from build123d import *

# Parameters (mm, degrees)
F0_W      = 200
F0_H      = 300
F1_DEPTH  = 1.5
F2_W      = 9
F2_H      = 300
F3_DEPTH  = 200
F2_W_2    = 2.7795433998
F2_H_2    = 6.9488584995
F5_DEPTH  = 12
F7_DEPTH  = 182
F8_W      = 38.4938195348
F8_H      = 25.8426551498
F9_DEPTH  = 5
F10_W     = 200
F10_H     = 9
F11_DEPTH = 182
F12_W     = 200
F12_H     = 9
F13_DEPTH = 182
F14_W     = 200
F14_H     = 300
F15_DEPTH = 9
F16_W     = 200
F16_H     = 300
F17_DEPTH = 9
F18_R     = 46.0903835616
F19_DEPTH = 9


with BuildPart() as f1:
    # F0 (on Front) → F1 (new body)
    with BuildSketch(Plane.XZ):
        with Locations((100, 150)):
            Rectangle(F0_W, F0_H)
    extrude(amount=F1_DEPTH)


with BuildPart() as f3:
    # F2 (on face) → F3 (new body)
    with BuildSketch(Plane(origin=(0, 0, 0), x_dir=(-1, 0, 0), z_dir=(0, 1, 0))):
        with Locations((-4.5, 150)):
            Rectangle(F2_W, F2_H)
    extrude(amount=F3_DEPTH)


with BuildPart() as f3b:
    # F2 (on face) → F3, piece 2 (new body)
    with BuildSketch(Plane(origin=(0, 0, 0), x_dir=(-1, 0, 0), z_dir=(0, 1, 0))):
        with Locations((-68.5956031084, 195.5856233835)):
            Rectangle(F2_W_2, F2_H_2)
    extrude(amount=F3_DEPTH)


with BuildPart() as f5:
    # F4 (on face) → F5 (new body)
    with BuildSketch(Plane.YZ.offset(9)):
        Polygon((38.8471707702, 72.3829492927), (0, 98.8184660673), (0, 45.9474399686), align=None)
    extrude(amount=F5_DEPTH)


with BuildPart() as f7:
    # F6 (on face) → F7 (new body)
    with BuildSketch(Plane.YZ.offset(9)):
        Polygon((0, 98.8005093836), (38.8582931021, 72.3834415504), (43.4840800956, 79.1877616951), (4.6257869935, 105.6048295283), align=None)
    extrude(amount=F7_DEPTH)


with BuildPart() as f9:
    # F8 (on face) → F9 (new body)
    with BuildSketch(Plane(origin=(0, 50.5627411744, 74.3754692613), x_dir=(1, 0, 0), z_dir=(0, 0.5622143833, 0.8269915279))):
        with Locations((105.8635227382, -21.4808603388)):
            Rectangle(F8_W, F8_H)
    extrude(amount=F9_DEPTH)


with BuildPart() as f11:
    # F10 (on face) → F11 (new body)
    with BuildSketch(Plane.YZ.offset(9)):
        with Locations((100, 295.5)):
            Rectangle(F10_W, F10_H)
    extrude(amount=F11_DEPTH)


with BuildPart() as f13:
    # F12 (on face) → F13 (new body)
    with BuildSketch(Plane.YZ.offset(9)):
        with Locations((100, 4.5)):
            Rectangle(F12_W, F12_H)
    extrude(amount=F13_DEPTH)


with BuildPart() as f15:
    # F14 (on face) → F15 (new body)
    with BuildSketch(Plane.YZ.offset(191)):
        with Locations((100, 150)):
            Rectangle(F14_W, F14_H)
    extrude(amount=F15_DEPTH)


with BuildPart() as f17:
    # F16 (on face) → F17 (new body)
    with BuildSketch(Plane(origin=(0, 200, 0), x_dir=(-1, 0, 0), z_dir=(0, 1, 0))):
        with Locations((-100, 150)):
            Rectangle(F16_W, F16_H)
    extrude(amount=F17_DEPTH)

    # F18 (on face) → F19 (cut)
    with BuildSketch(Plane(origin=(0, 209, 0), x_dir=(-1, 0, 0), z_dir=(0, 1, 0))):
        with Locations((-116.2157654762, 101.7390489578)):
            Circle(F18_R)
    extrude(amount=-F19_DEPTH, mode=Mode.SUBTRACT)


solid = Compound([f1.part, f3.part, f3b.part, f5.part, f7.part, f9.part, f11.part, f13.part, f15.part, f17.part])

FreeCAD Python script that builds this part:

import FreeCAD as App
import Part
import Sketcher
Q = App.Units.Quantity

doc = App.newDocument("Part")
body = doc.addObject("PartDesign::Body", "Body")

# Sketch on XZ plane
sketch1 = body.newObject("Sketcher::SketchObject", "Sketch")
sketch1.AttachmentSupport = (doc.getObject("XZ_Plane"), [""])
sketch1.MapMode = "FlatFace"
sketch1.addGeometry(Part.LineSegment(App.Vector(0, 300, 0), App.Vector(0, 0, 0)), False)
sketch1.addGeometry(Part.LineSegment(App.Vector(0, 0, 0), App.Vector(200, 0, 0)), False)
sketch1.addGeometry(Part.LineSegment(App.Vector(200, 0, 0), App.Vector(200, 300, 0)), False)
sketch1.addGeometry(Part.LineSegment(App.Vector(200, 300, 0), App.Vector(0, 300, 0)), False)
sketch1.addConstraint(Sketcher.Constraint("Coincident", 0, 2, 1, 1))
sketch1.addConstraint(Sketcher.Constraint("Coincident", 1, 2, 2, 1))
sketch1.addConstraint(Sketcher.Constraint("Coincident", 2, 2, 3, 1))
sketch1.addConstraint(Sketcher.Constraint("Coincident", 3, 2, 0, 1))
sketch1.addConstraint(Sketcher.Constraint("Vertical", 0))
sketch1.addConstraint(Sketcher.Constraint("Horizontal", 1))
sketch1.addConstraint(Sketcher.Constraint("Vertical", 2))
sketch1.addConstraint(Sketcher.Constraint("Horizontal", 3))
sketch1.addConstraint(Sketcher.Constraint("Coincident", 0, 2, -1, 1))
sketch1.addConstraint(Sketcher.Constraint("DistanceX", 1, 1, 1, 2, Q("200 mm")))
sketch1.addConstraint(Sketcher.Constraint("DistanceY", 0, 2, 0, 1, Q("300 mm")))
pad1 = body.newObject("PartDesign::Pad", "Pad")
pad1.Profile = sketch1
pad1.Length = 1.5
body2 = doc.addObject("PartDesign::Body", "Body001")

# Sketch on XZ plane
sketch2 = body2.newObject("Sketcher::SketchObject", "Sketch001")
sketch2.AttachmentSupport = (doc.getObject("XZ_Plane001"), [""])
sketch2.MapMode = "FlatFace"
sketch2.addGeometry(Part.LineSegment(App.Vector(9, 300, 0), App.Vector(9, 0, 0)), False)
sketch2.addGeometry(Part.LineSegment(App.Vector(9, 0, 0), App.Vector(0, 0, 0)), False)
sketch2.addGeometry(Part.LineSegment(App.Vector(0, 0, 0), App.Vector(0, 300, 0)), False)
sketch2.addGeometry(Part.LineSegment(App.Vector(0, 300, 0), App.Vector(9, 300, 0)), False)
sketch2.addConstraint(Sketcher.Constraint("Coincident", 0, 2, 1, 1))
sketch2.addConstraint(Sketcher.Constraint("Coincident", 1, 2, 2, 1))
sketch2.addConstraint(Sketcher.Constraint("Coincident", 2, 2, 3, 1))
sketch2.addConstraint(Sketcher.Constraint("Coincident", 3, 2, 0, 1))
sketch2.addConstraint(Sketcher.Constraint("Vertical", 0))
sketch2.addConstraint(Sketcher.Constraint("Horizontal", 1))
sketch2.addConstraint(Sketcher.Constraint("Vertical", 2))
sketch2.addConstraint(Sketcher.Constraint("Horizontal", 3))
sketch2.addConstraint(Sketcher.Constraint("Coincident", 1, 2, -1, 1))
sketch2.addConstraint(Sketcher.Constraint("DistanceX", 1, 2, 1, 1, Q("9 mm")))
sketch2.addConstraint(Sketcher.Constraint("DistanceY", 0, 2, 0, 1, Q("300 mm")))
pad2 = body2.newObject("PartDesign::Pad", "Pad001")
pad2.Profile = sketch2
pad2.Length = 200
pad2.Reversed = True
body3 = doc.addObject("PartDesign::Body", "Body002")

# Sketch on XZ plane
sketch3 = body3.newObject("Sketcher::SketchObject", "Sketch002")
sketch3.AttachmentSupport = (doc.getObject("XZ_Plane002"), [""])
sketch3.MapMode = "FlatFace"
sketch3.addGeometry(Part.LineSegment(App.Vector(69.985375, 199.060053, 0), App.Vector(69.985375, 192.111194, 0)), False)
sketch3.addGeometry(Part.LineSegment(App.Vector(69.985375, 192.111194, 0), App.Vector(67.205831, 192.111194, 0)), False)
sketch3.addGeometry(Part.LineSegment(App.Vector(67.205831, 192.111194, 0), App.Vector(67.205831, 199.060053, 0)), False)
sketch3.addGeometry(Part.LineSegment(App.Vector(67.205831, 199.060053, 0), App.Vector(69.985375, 199.060053, 0)), False)
sketch3.addConstraint(Sketcher.Constraint("Coincident", 0, 2, 1, 1))
sketch3.addConstraint(Sketcher.Constraint("Coincident", 1, 2, 2, 1))
sketch3.addConstraint(Sketcher.Constraint("Coincident", 2, 2, 3, 1))
sketch3.addConstraint(Sketcher.Constraint("Coincident", 3, 2, 0, 1))
sketch3.addConstraint(Sketcher.Constraint("Vertical", 0))
sketch3.addConstraint(Sketcher.Constraint("Horizontal", 1))
sketch3.addConstraint(Sketcher.Constraint("Vertical", 2))
sketch3.addConstraint(Sketcher.Constraint("Horizontal", 3))
sketch3.addConstraint(Sketcher.Constraint("DistanceY", 0, 2, 0, 1, Q("6.948858 mm")))
sketch3.addConstraint(Sketcher.Constraint("DistanceX", 1, 2, 1, 1, Q("2.779543 mm")))
sketch3.addConstraint(Sketcher.Constraint("DistanceX", -1, 1, 1, 2, Q("67.205831 mm")))
sketch3.addConstraint(Sketcher.Constraint("DistanceY", -1, 1, 0, 2, Q("192.111194 mm")))
pad3 = body3.newObject("PartDesign::Pad", "Pad002")
pad3.Profile = sketch3
pad3.Length = 200
pad3.Reversed = True
body4 = doc.addObject("PartDesign::Body", "Body003")

# Sketch on YZ plane
sketch4 = body4.newObject("Sketcher::SketchObject", "Sketch003")
sketch4.AttachmentSupport = (doc.getObject("YZ_Plane003"), [""])
sketch4.MapMode = "FlatFace"
sketch4.AttachmentOffset = App.Placement(App.Vector(0, 0, 9), App.Rotation())
sketch4.addGeometry(Part.LineSegment(App.Vector(38.847171, 72.382949, 0), App.Vector(0, 98.818466, 0)), False)
sketch4.addGeometry(Part.LineSegment(App.Vector(0, 98.818466, 0), App.Vector(0, 45.94744, 0)), False)
sketch4.addGeometry(Part.LineSegment(App.Vector(0, 45.94744, 0), App.Vector(38.847171, 72.382949, 0)), False)
sketch4.addConstraint(Sketcher.Constraint("Coincident", 0, 2, 1, 1))
sketch4.addConstraint(Sketcher.Constraint("Coincident", 1, 2, 2, 1))
sketch4.addConstraint(Sketcher.Constraint("Coincident", 2, 2, 0, 1))
sketch4.addConstraint(Sketcher.Constraint("Vertical", 1))
sketch4.addConstraint(Sketcher.Constraint("PointOnObject", 0, 2, -2))
sketch4.addConstraint(Sketcher.Constraint("Distance", 2, Q("46.98871 mm")))
sketch4.addConstraint(Sketcher.Constraint("DistanceY", 1, 2, 1, 1, Q("52.871026 mm")))
sketch4.addConstraint(Sketcher.Constraint("DistanceY", -1, 1, 1, 2, Q("45.94744 mm")))
sketch4.addConstraint(Sketcher.Constraint("DistanceX", -1, 1, 2, 2, Q("38.847171 mm")))
pad4 = body4.newObject("PartDesign::Pad", "Pad003")
pad4.Profile = sketch4
pad4.Length = 12
body5 = doc.addObject("PartDesign::Body", "Body004")

# Sketch on YZ plane
sketch5 = body5.newObject("Sketcher::SketchObject", "Sketch004")
sketch5.AttachmentSupport = (doc.getObject("YZ_Plane004"), [""])
sketch5.MapMode = "FlatFace"
sketch5.AttachmentOffset = App.Placement(App.Vector(0, 0, 9), App.Rotation())
sketch5.addGeometry(Part.LineSegment(App.Vector(0, 98.800509, 0), App.Vector(38.858293, 72.383442, 0)), False)
sketch5.addGeometry(Part.LineSegment(App.Vector(38.858293, 72.383442, 0), App.Vector(43.48408, 79.187762, 0)), False)
sketch5.addGeometry(Part.LineSegment(App.Vector(43.48408, 79.187762, 0), App.Vector(4.625787, 105.60483, 0)), False)
sketch5.addGeometry(Part.LineSegment(App.Vector(4.625787, 105.60483, 0), App.Vector(0, 98.800509, 0)), False)
sketch5.addConstraint(Sketcher.Constraint("Coincident", 0, 2, 1, 1))
sketch5.addConstraint(Sketcher.Constraint("Coincident", 1, 2, 2, 1))
sketch5.addConstraint(Sketcher.Constraint("Coincident", 2, 2, 3, 1))
sketch5.addConstraint(Sketcher.Constraint("Coincident", 3, 2, 0, 1))
sketch5.addConstraint(Sketcher.Constraint("PointOnObject", 3, 2, -2))
sketch5.addConstraint(Sketcher.Constraint("Perpendicular", 0, 1))
sketch5.addConstraint(Sketcher.Constraint("Perpendicular", 1, 2))
sketch5.addConstraint(Sketcher.Constraint("Perpendicular", 2, 3))
sketch5.addConstraint(Sketcher.Constraint("Distance", 1, Q("8.227799 mm")))
sketch5.addConstraint(Sketcher.Constraint("DistanceY", -1, 1, 0, 2, Q("72.383442 mm")))
sketch5.addConstraint(Sketcher.Constraint("DistanceX", -1, 1, 1, 2, Q("43.48408 mm")))
sketch5.addConstraint(Sketcher.Constraint("DistanceY", -1, 1, 1, 2, Q("79.187762 mm")))
pad5 = body5.newObject("PartDesign::Pad", "Pad004")
pad5.Profile = sketch5
pad5.Length = 182
body6 = doc.addObject("PartDesign::Body", "Body005")

# Sketch on an angled plane
sketch6 = body6.newObject("Sketcher::SketchObject", "Sketch005")
sketch6.Placement = App.Placement(App.Vector(0, 50.562741, 74.375469), App.Rotation(App.Vector(1, 0, 0), App.Vector(0, 0.826991528, -0.562214383), App.Vector(0, 0.562214383, 0.826991528), "ZXY"))
sketch6.addGeometry(Part.LineSegment(App.Vector(86.616613, -8.559533, 0), App.Vector(86.616613, -34.402188, 0)), False)
sketch6.addGeometry(Part.LineSegment(App.Vector(86.616613, -34.402188, 0), App.Vector(125.110433, -34.402188, 0)), False)
sketch6.addGeometry(Part.LineSegment(App.Vector(125.110433, -34.402188, 0), App.Vector(125.110433, -8.559533, 0)), False)
sketch6.addGeometry(Part.LineSegment(App.Vector(125.110433, -8.559533, 0), App.Vector(86.616613, -8.559533, 0)), False)
sketch6.addConstraint(Sketcher.Constraint("Coincident", 0, 2, 1, 1))
sketch6.addConstraint(Sketcher.Constraint("Coincident", 1, 2, 2, 1))
sketch6.addConstraint(Sketcher.Constraint("Coincident", 2, 2, 3, 1))
sketch6.addConstraint(Sketcher.Constraint("Coincident", 3, 2, 0, 1))
sketch6.addConstraint(Sketcher.Constraint("Vertical", 0))
sketch6.addConstraint(Sketcher.Constraint("Horizontal", 1))
sketch6.addConstraint(Sketcher.Constraint("Vertical", 2))
sketch6.addConstraint(Sketcher.Constraint("Horizontal", 3))
sketch6.addConstraint(Sketcher.Constraint("DistanceX", 1, 1, 1, 2, Q("38.49382 mm")))
sketch6.addConstraint(Sketcher.Constraint("DistanceY", 0, 2, 0, 1, Q("25.842655 mm")))
sketch6.addConstraint(Sketcher.Constraint("DistanceX", -1, 1, 0, 2, Q("86.616613 mm")))
sketch6.addConstraint(Sketcher.Constraint("DistanceY", 0, 2, -1, 1, Q("34.402188 mm")))
pad6 = body6.newObject("PartDesign::Pad", "Pad005")
pad6.Profile = sketch6
pad6.Length = 5
body7 = doc.addObject("PartDesign::Body", "Body006")

# Sketch on YZ plane
sketch7 = body7.newObject("Sketcher::SketchObject", "Sketch006")
sketch7.AttachmentSupport = (doc.getObject("YZ_Plane006"), [""])
sketch7.MapMode = "FlatFace"
sketch7.AttachmentOffset = App.Placement(App.Vector(0, 0, 9), App.Rotation())
sketch7.addGeometry(Part.LineSegment(App.Vector(0, 300, 0), App.Vector(0, 291, 0)), False)
sketch7.addGeometry(Part.LineSegment(App.Vector(0, 291, 0), App.Vector(200, 291, 0)), False)
sketch7.addGeometry(Part.LineSegment(App.Vector(200, 291, 0), App.Vector(200, 300, 0)), False)
sketch7.addGeometry(Part.LineSegment(App.Vector(200, 300, 0), App.Vector(0, 300, 0)), False)
sketch7.addConstraint(Sketcher.Constraint("Coincident", 0, 2, 1, 1))
sketch7.addConstraint(Sketcher.Constraint("Coincident", 1, 2, 2, 1))
sketch7.addConstraint(Sketcher.Constraint("Coincident", 2, 2, 3, 1))
sketch7.addConstraint(Sketcher.Constraint("Coincident", 3, 2, 0, 1))
sketch7.addConstraint(Sketcher.Constraint("Vertical", 0))
sketch7.addConstraint(Sketcher.Constraint("Horizontal", 1))
sketch7.addConstraint(Sketcher.Constraint("Vertical", 2))
sketch7.addConstraint(Sketcher.Constraint("Horizontal", 3))
sketch7.addConstraint(Sketcher.Constraint("PointOnObject", 0, 2, -2))
sketch7.addConstraint(Sketcher.Constraint("DistanceX", 1, 1, 1, 2, Q("200 mm")))
sketch7.addConstraint(Sketcher.Constraint("DistanceY", 0, 2, 0, 1, Q("9 mm")))
sketch7.addConstraint(Sketcher.Constraint("DistanceY", -1, 1, 0, 2, Q("291 mm")))
pad7 = body7.newObject("PartDesign::Pad", "Pad006")
pad7.Profile = sketch7
pad7.Length = 182
body8 = doc.addObject("PartDesign::Body", "Body007")

# Sketch on YZ plane
sketch8 = body8.newObject("Sketcher::SketchObject", "Sketch007")
sketch8.AttachmentSupport = (doc.getObject("YZ_Plane007"), [""])
sketch8.MapMode = "FlatFace"
sketch8.AttachmentOffset = App.Placement(App.Vector(0, 0, 9), App.Rotation())
sketch8.addGeometry(Part.LineSegment(App.Vector(0, 9, 0), App.Vector(0, 0, 0)), False)
sketch8.addGeometry(Part.LineSegment(App.Vector(0, 0, 0), App.Vector(200, 0, 0)), False)
sketch8.addGeometry(Part.LineSegment(App.Vector(200, 0, 0), App.Vector(200, 9, 0)), False)
sketch8.addGeometry(Part.LineSegment(App.Vector(200, 9, 0), App.Vector(0, 9, 0)), False)
sketch8.addConstraint(Sketcher.Constraint("Coincident", 0, 2, 1, 1))
sketch8.addConstraint(Sketcher.Constraint("Coincident", 1, 2, 2, 1))
sketch8.addConstraint(Sketcher.Constraint("Coincident", 2, 2, 3, 1))
sketch8.addConstraint(Sketcher.Constraint("Coincident", 3, 2, 0, 1))
sketch8.addConstraint(Sketcher.Constraint("Vertical", 0))
sketch8.addConstraint(Sketcher.Constraint("Horizontal", 1))
sketch8.addConstraint(Sketcher.Constraint("Vertical", 2))
sketch8.addConstraint(Sketcher.Constraint("Horizontal", 3))
sketch8.addConstraint(Sketcher.Constraint("Coincident", 0, 2, -1, 1))
sketch8.addConstraint(Sketcher.Constraint("DistanceX", 1, 1, 1, 2, Q("200 mm")))
sketch8.addConstraint(Sketcher.Constraint("DistanceY", 0, 2, 0, 1, Q("9 mm")))
pad8 = body8.newObject("PartDesign::Pad", "Pad007")
pad8.Profile = sketch8
pad8.Length = 182
body9 = doc.addObject("PartDesign::Body", "Body008")

# Sketch on YZ plane
sketch9 = body9.newObject("Sketcher::SketchObject", "Sketch008")
sketch9.AttachmentSupport = (doc.getObject("YZ_Plane008"), [""])
sketch9.MapMode = "FlatFace"
sketch9.AttachmentOffset = App.Placement(App.Vector(0, 0, 191), App.Rotation())
sketch9.addGeometry(Part.LineSegment(App.Vector(0, 300, 0), App.Vector(0, 0, 0)), False)
sketch9.addGeometry(Part.LineSegment(App.Vector(0, 0, 0), App.Vector(200, 0, 0)), False)
sketch9.addGeometry(Part.LineSegment(App.Vector(200, 0, 0), App.Vector(200, 300, 0)), False)
sketch9.addGeometry(Part.LineSegment(App.Vector(200, 300, 0), App.Vector(0, 300, 0)), False)
sketch9.addConstraint(Sketcher.Constraint("Coincident", 0, 2, 1, 1))
sketch9.addConstraint(Sketcher.Constraint("Coincident", 1, 2, 2, 1))
sketch9.addConstraint(Sketcher.Constraint("Coincident", 2, 2, 3, 1))
sketch9.addConstraint(Sketcher.Constraint("Coincident", 3, 2, 0, 1))
sketch9.addConstraint(Sketcher.Constraint("Vertical", 0))
sketch9.addConstraint(Sketcher.Constraint("Horizontal", 1))
sketch9.addConstraint(Sketcher.Constraint("Vertical", 2))
sketch9.addConstraint(Sketcher.Constraint("Horizontal", 3))
sketch9.addConstraint(Sketcher.Constraint("Coincident", 0, 2, -1, 1))
sketch9.addConstraint(Sketcher.Constraint("DistanceX", 1, 1, 1, 2, Q("200 mm")))
sketch9.addConstraint(Sketcher.Constraint("DistanceY", 0, 2, 0, 1, Q("300 mm")))
pad9 = body9.newObject("PartDesign::Pad", "Pad008")
pad9.Profile = sketch9
pad9.Length = 9
body10 = doc.addObject("PartDesign::Body", "Body009")

# Sketch on XZ plane
sketch10 = body10.newObject("Sketcher::SketchObject", "Sketch009")
sketch10.AttachmentSupport = (doc.getObject("XZ_Plane009"), [""])
sketch10.MapMode = "FlatFace"
sketch10.AttachmentOffset = App.Placement(App.Vector(0, 0, -200), App.Rotation())
sketch10.addGeometry(Part.LineSegment(App.Vector(200, 300, 0), App.Vector(200, 0, 0)), False)
sketch10.addGeometry(Part.LineSegment(App.Vector(200, 0, 0), App.Vector(0, 0, 0)), False)
sketch10.addGeometry(Part.LineSegment(App.Vector(0, 0, 0), App.Vector(0, 300, 0)), False)
sketch10.addGeometry(Part.LineSegment(App.Vector(0, 300, 0), App.Vector(200, 300, 0)), False)
sketch10.addConstraint(Sketcher.Constraint("Coincident", 0, 2, 1, 1))
sketch10.addConstraint(Sketcher.Constraint("Coincident", 1, 2, 2, 1))
sketch10.addConstraint(Sketcher.Constraint("Coincident", 2, 2, 3, 1))
sketch10.addConstraint(Sketcher.Constraint("Coincident", 3, 2, 0, 1))
sketch10.addConstraint(Sketcher.Constraint("Vertical", 0))
sketch10.addConstraint(Sketcher.Constraint("Horizontal", 1))
sketch10.addConstraint(Sketcher.Constraint("Vertical", 2))
sketch10.addConstraint(Sketcher.Constraint("Horizontal", 3))
sketch10.addConstraint(Sketcher.Constraint("Coincident", 1, 2, -1, 1))
sketch10.addConstraint(Sketcher.Constraint("DistanceX", 1, 2, 1, 1, Q("200 mm")))
sketch10.addConstraint(Sketcher.Constraint("DistanceY", 0, 2, 0, 1, Q("300 mm")))
pad10 = body10.newObject("PartDesign::Pad", "Pad009")
pad10.Profile = sketch10
pad10.Length = 9
pad10.Reversed = True

# Sketch on XZ plane
sketch11 = body10.newObject("Sketcher::SketchObject", "Sketch010")
sketch11.AttachmentSupport = (doc.getObject("XZ_Plane009"), [""])
sketch11.MapMode = "FlatFace"
sketch11.AttachmentOffset = App.Placement(App.Vector(0, 0, -209), App.Rotation())
sketch11.addGeometry(Part.Circle(App.Vector(116.215765, 101.739049, 0), App.Vector(0, 0, 1), 46.090384), False)
sketch11.addConstraint(Sketcher.Constraint("Diameter", 0, Q("92.180767 mm")))
sketch11.addConstraint(Sketcher.Constraint("DistanceY", -1, 1, 0, 3, Q("101.739049 mm")))
sketch11.addConstraint(Sketcher.Constraint("DistanceX", -1, 1, 0, 3, Q("116.215765 mm")))
pocket1 = body10.newObject("PartDesign::Pocket", "Pocket")
pocket1.Profile = sketch11
pocket1.Length = 9
pocket1.Reversed = True

doc.recompute()
